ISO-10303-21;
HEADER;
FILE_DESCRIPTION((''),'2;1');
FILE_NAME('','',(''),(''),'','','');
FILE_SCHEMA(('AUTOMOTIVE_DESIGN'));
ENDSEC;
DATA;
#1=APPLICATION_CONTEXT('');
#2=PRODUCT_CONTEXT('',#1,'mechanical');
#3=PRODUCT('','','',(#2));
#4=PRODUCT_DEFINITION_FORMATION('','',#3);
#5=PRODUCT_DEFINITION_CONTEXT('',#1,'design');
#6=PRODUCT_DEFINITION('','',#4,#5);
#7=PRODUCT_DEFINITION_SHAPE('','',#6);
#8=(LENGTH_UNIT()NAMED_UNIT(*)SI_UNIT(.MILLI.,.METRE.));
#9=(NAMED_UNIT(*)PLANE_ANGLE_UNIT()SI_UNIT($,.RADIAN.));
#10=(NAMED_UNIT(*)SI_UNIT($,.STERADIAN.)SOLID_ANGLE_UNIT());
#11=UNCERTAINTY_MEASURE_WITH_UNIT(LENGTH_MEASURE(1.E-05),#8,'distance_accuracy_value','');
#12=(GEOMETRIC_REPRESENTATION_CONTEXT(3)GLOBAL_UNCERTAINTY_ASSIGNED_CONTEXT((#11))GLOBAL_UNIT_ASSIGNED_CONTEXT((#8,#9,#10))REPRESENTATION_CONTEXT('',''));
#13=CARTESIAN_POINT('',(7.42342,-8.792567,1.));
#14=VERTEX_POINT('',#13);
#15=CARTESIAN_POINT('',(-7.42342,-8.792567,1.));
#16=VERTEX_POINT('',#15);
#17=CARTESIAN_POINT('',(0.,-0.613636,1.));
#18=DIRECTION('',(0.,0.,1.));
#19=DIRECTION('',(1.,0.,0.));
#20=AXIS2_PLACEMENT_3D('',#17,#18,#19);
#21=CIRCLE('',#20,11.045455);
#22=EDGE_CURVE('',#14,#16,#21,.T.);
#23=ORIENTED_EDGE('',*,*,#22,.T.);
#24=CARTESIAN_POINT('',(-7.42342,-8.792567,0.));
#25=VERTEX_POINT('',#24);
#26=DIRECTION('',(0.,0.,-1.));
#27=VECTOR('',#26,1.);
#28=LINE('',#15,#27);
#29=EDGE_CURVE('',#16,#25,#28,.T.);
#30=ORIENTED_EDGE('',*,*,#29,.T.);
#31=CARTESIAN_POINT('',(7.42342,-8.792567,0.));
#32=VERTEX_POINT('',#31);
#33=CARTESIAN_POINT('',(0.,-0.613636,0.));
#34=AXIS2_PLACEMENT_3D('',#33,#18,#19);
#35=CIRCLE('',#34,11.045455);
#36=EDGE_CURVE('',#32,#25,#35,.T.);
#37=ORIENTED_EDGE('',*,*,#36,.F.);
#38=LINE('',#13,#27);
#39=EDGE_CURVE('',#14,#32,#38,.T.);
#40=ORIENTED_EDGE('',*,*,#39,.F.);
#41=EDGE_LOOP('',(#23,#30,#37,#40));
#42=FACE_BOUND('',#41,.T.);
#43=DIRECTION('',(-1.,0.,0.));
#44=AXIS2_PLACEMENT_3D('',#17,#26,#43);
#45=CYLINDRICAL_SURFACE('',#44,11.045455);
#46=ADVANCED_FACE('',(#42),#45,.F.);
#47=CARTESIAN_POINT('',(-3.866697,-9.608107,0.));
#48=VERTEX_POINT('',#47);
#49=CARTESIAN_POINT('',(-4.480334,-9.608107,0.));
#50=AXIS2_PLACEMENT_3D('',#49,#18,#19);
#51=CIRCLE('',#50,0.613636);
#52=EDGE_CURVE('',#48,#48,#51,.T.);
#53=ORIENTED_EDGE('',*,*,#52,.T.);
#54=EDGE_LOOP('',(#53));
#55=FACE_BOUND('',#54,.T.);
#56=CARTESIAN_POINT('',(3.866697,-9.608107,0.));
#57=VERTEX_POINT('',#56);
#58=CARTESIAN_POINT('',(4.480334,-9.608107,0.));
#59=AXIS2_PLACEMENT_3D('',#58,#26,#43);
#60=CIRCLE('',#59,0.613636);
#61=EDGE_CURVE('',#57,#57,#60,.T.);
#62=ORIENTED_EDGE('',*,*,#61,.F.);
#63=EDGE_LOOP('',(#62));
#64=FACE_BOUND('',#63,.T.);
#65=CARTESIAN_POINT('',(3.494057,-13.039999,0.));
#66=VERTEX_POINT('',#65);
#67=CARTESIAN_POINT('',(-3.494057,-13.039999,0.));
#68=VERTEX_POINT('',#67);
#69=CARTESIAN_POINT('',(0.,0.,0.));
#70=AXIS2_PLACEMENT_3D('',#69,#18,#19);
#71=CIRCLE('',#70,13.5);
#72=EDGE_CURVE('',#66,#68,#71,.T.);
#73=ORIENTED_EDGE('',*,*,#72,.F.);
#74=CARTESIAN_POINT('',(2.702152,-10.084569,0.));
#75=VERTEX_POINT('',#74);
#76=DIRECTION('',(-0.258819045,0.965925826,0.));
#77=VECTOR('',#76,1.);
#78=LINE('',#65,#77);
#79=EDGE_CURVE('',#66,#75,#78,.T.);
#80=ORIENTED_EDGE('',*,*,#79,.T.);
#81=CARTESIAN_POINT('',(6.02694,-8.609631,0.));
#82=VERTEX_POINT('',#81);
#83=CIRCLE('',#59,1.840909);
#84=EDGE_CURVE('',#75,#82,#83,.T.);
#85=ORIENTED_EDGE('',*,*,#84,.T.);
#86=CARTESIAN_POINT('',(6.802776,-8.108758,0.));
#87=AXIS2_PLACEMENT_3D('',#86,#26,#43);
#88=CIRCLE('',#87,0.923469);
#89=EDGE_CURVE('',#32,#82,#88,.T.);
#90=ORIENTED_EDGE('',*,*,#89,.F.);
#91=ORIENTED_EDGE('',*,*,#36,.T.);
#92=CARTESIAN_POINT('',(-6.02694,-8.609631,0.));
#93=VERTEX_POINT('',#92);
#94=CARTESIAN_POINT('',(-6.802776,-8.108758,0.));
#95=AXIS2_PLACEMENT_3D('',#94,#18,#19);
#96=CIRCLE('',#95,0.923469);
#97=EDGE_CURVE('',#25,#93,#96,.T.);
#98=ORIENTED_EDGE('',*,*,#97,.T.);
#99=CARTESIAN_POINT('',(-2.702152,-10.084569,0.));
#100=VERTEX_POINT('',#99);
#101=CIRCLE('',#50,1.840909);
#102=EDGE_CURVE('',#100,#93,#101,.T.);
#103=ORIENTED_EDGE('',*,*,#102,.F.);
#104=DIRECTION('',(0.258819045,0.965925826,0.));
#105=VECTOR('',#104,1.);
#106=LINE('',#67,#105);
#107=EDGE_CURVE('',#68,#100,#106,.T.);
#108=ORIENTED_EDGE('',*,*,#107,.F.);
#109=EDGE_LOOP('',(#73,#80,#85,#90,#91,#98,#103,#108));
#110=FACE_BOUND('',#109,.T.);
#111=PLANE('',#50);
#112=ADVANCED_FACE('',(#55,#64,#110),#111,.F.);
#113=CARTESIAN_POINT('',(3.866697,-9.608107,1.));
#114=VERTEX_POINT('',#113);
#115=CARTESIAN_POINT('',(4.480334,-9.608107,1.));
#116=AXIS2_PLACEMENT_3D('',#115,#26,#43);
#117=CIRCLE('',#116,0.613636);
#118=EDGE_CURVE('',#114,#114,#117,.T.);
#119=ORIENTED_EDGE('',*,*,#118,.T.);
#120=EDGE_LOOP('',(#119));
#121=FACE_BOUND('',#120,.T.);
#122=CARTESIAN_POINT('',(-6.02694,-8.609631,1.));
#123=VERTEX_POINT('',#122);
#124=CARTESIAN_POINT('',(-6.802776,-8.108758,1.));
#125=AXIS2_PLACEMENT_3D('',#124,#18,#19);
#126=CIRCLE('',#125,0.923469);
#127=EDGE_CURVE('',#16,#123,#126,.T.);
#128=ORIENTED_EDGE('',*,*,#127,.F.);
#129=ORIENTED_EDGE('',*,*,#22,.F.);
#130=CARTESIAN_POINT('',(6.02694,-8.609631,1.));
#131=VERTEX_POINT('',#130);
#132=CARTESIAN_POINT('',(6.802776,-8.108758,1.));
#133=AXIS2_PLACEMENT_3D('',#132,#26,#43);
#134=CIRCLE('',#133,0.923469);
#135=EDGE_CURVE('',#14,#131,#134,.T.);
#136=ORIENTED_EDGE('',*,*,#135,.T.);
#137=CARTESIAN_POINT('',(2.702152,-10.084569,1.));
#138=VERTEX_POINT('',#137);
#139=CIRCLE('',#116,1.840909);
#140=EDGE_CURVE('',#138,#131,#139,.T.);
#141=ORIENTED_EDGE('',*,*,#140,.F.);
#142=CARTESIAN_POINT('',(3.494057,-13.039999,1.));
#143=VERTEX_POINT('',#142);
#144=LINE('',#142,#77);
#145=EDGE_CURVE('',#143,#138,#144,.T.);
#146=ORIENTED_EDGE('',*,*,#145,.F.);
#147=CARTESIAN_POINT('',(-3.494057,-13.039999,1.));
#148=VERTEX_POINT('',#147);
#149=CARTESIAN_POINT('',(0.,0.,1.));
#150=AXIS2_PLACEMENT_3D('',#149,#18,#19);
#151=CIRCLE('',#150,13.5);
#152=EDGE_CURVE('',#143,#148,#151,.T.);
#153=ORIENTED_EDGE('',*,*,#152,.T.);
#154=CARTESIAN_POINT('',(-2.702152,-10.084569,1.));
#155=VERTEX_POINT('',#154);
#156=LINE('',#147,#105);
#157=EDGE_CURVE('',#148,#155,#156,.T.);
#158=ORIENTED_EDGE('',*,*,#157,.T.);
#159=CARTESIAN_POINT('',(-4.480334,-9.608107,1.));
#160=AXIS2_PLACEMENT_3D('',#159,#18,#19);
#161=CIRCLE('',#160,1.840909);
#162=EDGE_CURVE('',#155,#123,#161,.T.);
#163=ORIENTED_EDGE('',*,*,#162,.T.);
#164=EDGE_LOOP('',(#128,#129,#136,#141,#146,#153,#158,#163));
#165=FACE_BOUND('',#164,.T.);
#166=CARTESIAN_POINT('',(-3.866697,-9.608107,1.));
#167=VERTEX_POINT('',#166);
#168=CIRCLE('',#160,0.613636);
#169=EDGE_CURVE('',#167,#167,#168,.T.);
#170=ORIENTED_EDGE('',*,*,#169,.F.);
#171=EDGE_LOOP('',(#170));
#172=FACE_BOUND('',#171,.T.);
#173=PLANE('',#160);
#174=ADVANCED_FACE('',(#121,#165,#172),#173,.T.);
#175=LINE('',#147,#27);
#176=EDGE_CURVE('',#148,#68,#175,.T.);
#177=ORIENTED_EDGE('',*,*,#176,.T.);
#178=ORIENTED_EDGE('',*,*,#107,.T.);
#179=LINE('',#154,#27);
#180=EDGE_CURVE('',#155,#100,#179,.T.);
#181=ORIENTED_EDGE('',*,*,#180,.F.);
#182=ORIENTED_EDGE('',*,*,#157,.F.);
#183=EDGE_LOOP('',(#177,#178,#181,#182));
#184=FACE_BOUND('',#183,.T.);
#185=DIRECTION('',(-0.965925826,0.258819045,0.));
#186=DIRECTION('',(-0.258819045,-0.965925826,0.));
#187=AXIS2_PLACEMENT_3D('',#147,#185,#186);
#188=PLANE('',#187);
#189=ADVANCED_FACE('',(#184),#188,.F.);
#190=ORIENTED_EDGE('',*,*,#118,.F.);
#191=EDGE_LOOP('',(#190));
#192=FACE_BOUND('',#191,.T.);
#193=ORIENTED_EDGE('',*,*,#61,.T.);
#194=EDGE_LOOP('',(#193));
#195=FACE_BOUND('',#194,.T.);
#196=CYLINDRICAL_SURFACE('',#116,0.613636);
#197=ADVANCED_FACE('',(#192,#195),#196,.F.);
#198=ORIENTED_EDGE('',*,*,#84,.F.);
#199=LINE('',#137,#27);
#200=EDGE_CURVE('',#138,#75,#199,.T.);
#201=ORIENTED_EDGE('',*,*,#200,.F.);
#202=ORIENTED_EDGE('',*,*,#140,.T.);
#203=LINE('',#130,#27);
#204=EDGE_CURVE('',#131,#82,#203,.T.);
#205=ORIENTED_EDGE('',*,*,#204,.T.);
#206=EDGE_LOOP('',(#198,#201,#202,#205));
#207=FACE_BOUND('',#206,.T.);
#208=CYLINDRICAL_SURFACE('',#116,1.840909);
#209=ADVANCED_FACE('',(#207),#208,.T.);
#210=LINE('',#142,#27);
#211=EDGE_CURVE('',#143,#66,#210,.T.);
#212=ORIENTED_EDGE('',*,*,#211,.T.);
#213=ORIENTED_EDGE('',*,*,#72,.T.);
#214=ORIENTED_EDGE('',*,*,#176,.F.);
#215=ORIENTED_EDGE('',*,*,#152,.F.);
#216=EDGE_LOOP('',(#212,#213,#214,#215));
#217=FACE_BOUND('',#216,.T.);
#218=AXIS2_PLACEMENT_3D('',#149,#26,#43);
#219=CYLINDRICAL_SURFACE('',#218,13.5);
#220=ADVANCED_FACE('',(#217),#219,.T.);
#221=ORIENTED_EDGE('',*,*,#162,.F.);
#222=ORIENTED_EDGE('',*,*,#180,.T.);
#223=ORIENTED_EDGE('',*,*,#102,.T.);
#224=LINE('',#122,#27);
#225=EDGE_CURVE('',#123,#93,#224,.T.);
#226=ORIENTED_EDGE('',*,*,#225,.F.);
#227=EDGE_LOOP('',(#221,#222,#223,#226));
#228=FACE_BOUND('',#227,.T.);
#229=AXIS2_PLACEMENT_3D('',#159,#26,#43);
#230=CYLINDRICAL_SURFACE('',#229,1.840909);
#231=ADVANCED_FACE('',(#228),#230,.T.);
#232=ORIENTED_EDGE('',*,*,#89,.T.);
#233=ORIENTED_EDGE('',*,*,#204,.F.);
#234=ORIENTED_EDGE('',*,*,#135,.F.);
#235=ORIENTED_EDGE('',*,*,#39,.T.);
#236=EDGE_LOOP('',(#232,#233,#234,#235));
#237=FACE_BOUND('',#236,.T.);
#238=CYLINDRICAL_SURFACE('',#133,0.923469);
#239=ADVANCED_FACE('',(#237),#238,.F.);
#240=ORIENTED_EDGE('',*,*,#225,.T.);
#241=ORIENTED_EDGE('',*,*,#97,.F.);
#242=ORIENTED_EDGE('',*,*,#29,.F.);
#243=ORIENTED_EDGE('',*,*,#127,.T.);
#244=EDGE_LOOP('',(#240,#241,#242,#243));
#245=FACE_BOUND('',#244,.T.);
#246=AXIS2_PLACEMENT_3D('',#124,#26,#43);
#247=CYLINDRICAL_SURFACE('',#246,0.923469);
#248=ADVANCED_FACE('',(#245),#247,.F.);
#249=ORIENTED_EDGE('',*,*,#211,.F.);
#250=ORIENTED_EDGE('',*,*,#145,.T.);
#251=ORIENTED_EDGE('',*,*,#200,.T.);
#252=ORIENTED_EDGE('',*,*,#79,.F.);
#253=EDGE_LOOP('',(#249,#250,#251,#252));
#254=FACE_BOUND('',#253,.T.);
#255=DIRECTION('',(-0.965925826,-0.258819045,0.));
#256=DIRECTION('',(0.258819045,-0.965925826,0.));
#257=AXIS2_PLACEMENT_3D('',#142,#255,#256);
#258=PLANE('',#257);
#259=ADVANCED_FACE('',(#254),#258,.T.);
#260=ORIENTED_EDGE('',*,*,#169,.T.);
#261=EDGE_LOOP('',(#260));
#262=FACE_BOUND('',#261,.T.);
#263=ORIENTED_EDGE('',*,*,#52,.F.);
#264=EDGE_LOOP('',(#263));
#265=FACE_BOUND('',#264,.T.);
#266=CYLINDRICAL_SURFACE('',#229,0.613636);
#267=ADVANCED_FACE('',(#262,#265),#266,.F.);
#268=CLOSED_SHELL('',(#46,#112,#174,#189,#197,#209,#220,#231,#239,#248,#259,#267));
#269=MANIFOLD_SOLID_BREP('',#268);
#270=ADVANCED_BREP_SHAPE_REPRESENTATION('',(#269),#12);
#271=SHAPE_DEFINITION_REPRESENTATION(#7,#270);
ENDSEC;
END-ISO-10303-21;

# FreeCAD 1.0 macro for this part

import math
import FreeCAD as App
import Part
import Sketcher

V = App.Vector
Q = App.Units.Quantity

doc = App.newDocument("Part")
body = doc.addObject("PartDesign::Body", "Body")

# Sketch on XY plane
sketch1 = body.newObject("Sketcher::SketchObject", "Sketch")
sketch1.AttachmentSupport = (doc.getObject("XY_Plane"), [""])
sketch1.MapMode = "FlatFace"
sketch1.addGeometry(Part.LineSegment(V(-3.5, -13, 0), V(-2.7, -10.1, 0)), False)
sketch1.addGeometry(Part.ArcOfCircle(Part.Circle(V(-4.5, -9.6, 0), V(0, 0, 1), 1.8), math.radians(-15), math.radians(147)), False)
sketch1.addGeometry(Part.ArcOfCircle(Part.Circle(V(-6.8, -8.1, 0), V(0, 0, 1), 0.9), math.radians(-132), math.radians(-33)), False)
sketch1.addGeometry(Part.ArcOfCircle(Part.Circle(V(0, -0.6, 0), V(0, 0, 1), 11), math.radians(-48), math.radians(228)), False)
sketch1.addGeometry(Part.ArcOfCircle(Part.Circle(V(6.8, -8.1, 0), V(0, 0, 1), 0.9), math.radians(-147), math.radians(-48)), False)
sketch1.addGeometry(Part.ArcOfCircle(Part.Circle(V(4.5, -9.6, 0), V(0, 0, 1), 1.8), math.radians(33), math.radians(195)), False)
sketch1.addGeometry(Part.LineSegment(V(2.7, -10.1, 0), V(3.5, -13, 0)), False)
sketch1.addGeometry(Part.ArcOfCircle(Part.Circle(V(0, 0, 0), V(0, 0, 1), 13.5), math.radians(-75), math.radians(255)), False)
sketch1.addGeometry(Part.Circle(V(-4.5, -9.6, 0), V(0, 0, 1), 0.6), False)
sketch1.addGeometry(Part.Circle(V(4.5, -9.6, 0), V(0, 0, 1), 0.6), False)
sketch1.addConstraint(Sketcher.Constraint("Tangent", 0, 2, 1, 1))
sketch1.addConstraint(Sketcher.Constraint("Tangent", 1, 2, 2, 2))
sketch1.addConstraint(Sketcher.Constraint("Tangent", 2, 1, 3, 2))
sketch1.addConstraint(Sketcher.Constraint("Tangent", 3, 1, 4, 2))
sketch1.addConstraint(Sketcher.Constraint("Tangent", 4, 1, 5, 1))
sketch1.addConstraint(Sketcher.Constraint("Tangent", 5, 2, 6, 1))
sketch1.addConstraint(Sketcher.Constraint("Coincident", 6, 2, 7, 1))
sketch1.addConstraint(Sketcher.Constraint("Coincident", 7, 2, 0, 1))
sketch1.addConstraint(Sketcher.Constraint("Coincident", 7, 3, -1, 1))
sketch1.addConstraint(Sketcher.Constraint("Coincident", 8, 3, 1, 3))
sketch1.addConstraint(Sketcher.Constraint("Coincident", 9, 3, 5, 3))
sketch1.addConstraint(Sketcher.Constraint("Equal", 2, 4))
sketch1.addConstraint(Sketcher.Constraint("Equal", 1, 5))
sketch1.addConstraint(Sketcher.Constraint("Equal", 8, 9))
sketch1.addConstraint(Sketcher.Constraint("Symmetric", 2, 3, 4, 3, -2))
sketch1.addConstraint(Sketcher.Constraint("Symmetric", 0, 2, 5, 2, -2))
sketch1.addConstraint(Sketcher.Constraint("Radius", 7, Q("13.5 mm")))
sketch1.addConstraint(Sketcher.Constraint("Angle", 0, Q("75 deg")))
sketch1.addConstraint(Sketcher.Constraint("DistanceY", 6, 2, -1, 1, Q("13.039999 mm")))
sketch1.addConstraint(Sketcher.Constraint("Radius", 1, Q("1.840909 mm")))
sketch1.addConstraint(Sketcher.Constraint("Radius", 2, Q("0.923469 mm")))
sketch1.addConstraint(Sketcher.Constraint("Diameter", 8, Q("1.227273 mm")))
sketch1.addConstraint(Sketcher.Constraint("Radius", 3, Q("11.045455 mm")))
sketch1.addConstraint(Sketcher.Constraint("DistanceY", 0, 2, -1, 1, Q("10.084569 mm")))
sketch1.addConstraint(Sketcher.Constraint("DistanceX", 1, 2, -1, 1, Q("6.02694 mm")))
pad1 = body.newObject("PartDesign::Pad", "Pad")
pad1.Profile = sketch1
pad1.Length = 1

doc.recompute()
